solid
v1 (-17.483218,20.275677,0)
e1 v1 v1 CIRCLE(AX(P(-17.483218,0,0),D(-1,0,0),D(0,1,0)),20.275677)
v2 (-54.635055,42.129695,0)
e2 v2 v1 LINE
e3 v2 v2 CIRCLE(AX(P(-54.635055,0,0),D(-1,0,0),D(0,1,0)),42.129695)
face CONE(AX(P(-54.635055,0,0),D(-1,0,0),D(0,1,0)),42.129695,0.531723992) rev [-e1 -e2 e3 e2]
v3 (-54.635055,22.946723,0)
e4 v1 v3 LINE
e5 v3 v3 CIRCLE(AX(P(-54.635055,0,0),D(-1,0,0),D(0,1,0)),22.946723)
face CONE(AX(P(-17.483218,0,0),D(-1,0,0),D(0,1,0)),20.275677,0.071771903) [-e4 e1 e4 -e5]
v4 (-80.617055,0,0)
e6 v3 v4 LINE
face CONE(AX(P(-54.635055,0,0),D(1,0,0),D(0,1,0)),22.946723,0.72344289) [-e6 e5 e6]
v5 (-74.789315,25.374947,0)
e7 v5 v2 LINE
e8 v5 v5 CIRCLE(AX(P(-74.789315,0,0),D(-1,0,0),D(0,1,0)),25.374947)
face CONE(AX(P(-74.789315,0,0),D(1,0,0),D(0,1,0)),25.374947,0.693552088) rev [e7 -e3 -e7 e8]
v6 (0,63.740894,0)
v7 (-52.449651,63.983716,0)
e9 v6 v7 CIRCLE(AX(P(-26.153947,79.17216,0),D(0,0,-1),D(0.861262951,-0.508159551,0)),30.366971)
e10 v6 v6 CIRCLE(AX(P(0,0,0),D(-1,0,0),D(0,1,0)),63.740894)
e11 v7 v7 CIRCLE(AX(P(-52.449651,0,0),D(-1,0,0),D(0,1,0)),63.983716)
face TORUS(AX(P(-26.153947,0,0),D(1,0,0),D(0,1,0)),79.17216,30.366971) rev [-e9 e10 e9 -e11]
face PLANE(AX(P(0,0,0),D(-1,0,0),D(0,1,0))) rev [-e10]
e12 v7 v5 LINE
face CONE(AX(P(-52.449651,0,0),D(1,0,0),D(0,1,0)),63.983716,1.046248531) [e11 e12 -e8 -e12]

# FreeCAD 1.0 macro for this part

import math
import FreeCAD as App
import Part
import Sketcher

V = App.Vector

doc = App.newDocument("Part")
body = doc.addObject("PartDesign::Body", "Body")

# Sketch on XY plane
sketch1 = body.newObject("Sketcher::SketchObject", "Sketch")
sketch1.AttachmentSupport = (doc.getObject("XY_Plane"), [""])
sketch1.MapMode = "FlatFace"
sketch1.addGeometry(Part.LineSegment(V(-81, 0, 0), V(0, 0, 0)), False)
sketch1.addGeometry(Part.LineSegment(V(0, 0, 0), V(0, 64, 0)), False)
sketch1.addGeometry(Part.ArcOfCircle(Part.Circle(V(-26, 79, 0), V(0, 0, 1), 30), math.radians(-150), math.radians(-31)), False)
sketch1.addGeometry(Part.LineSegment(V(-52, 64, 0), V(-75, 25, 0)), False)
sketch1.addGeometry(Part.LineSegment(V(-75, 25, 0), V(-55, 42, 0)), False)
sketch1.addGeometry(Part.LineSegment(V(-55, 42, 0), V(-17, 20, 0)), False)
sketch1.addGeometry(Part.LineSegment(V(-17, 20, 0), V(-55, 23, 0)), False)
sketch1.addGeometry(Part.LineSegment(V(-55, 23, 0), V(-81, 0, 0)), False)
sketch1.addConstraint(Sketcher.Constraint("Coincident", 0, 2, 1, 1))
sketch1.addConstraint(Sketcher.Constraint("Coincident", 1, 2, 2, 2))
sketch1.addConstraint(Sketcher.Constraint("Coincident", 2, 1, 3, 1))
sketch1.addConstraint(Sketcher.Constraint("Coincident", 3, 2, 4, 1))
sketch1.addConstraint(Sketcher.Constraint("Coincident", 4, 2, 5, 1))
sketch1.addConstraint(Sketcher.Constraint("Coincident", 5, 2, 6, 1))
sketch1.addConstraint(Sketcher.Constraint("Coincident", 6, 2, 7, 1))
sketch1.addConstraint(Sketcher.Constraint("Coincident", 7, 2, 0, 1))
sketch1.addConstraint(Sketcher.Constraint("Horizontal", 0))
sketch1.addConstraint(Sketcher.Constraint("Vertical", 1))
sketch1.addConstraint(Sketcher.Constraint("Coincident", 0, 2, -1, 1))
sketch1.addConstraint(Sketcher.Constraint("Vertical", 4, 2, 6, 2))
sketch1.addConstraint(Sketcher.Constraint("Radius", 2, 30.366971))
sketch1.addConstraint(Sketcher.Constraint("DistanceX", 7, 2, 6, 2, 25.982))
sketch1.addConstraint(Sketcher.Constraint("DistanceY", 4, 2, 1, 2, 21.611199))
sketch1.addConstraint(Sketcher.Constraint("Distance", 4, 26.209078))
sketch1.addConstraint(Sketcher.Constraint("Distance", 6, 37.247731))
sketch1.addConstraint(Sketcher.Constraint("Distance", 7, 34.664339))
sketch1.addConstraint(Sketcher.Constraint("DistanceX", 0, 1, 0, 2, 80.617055))
sketch1.addConstraint(Sketcher.Constraint("DistanceY", 1, 1, 1, 2, 63.740894))
sketch1.addConstraint(Sketcher.Constraint("DistanceY", -1, 1, 2, 3, 79.17216))
sketch1.addConstraint(Sketcher.Constraint("DistanceX", 2, 1, -1, 1, 52.449651))
sketch1.addConstraint(Sketcher.Constraint("DistanceX", 5, 2, -1, 1, 17.483218))
sketch1.addConstraint(Sketcher.Constraint("DistanceY", 3, 2, 2, 1, 38.608769))
revolution = body.newObject("PartDesign::Revolution", "Revolution")
revolution.Profile = sketch1
revolution.ReferenceAxis = (sketch1, ["H_Axis"])
revolution.Angle = 360

doc.recompute()
